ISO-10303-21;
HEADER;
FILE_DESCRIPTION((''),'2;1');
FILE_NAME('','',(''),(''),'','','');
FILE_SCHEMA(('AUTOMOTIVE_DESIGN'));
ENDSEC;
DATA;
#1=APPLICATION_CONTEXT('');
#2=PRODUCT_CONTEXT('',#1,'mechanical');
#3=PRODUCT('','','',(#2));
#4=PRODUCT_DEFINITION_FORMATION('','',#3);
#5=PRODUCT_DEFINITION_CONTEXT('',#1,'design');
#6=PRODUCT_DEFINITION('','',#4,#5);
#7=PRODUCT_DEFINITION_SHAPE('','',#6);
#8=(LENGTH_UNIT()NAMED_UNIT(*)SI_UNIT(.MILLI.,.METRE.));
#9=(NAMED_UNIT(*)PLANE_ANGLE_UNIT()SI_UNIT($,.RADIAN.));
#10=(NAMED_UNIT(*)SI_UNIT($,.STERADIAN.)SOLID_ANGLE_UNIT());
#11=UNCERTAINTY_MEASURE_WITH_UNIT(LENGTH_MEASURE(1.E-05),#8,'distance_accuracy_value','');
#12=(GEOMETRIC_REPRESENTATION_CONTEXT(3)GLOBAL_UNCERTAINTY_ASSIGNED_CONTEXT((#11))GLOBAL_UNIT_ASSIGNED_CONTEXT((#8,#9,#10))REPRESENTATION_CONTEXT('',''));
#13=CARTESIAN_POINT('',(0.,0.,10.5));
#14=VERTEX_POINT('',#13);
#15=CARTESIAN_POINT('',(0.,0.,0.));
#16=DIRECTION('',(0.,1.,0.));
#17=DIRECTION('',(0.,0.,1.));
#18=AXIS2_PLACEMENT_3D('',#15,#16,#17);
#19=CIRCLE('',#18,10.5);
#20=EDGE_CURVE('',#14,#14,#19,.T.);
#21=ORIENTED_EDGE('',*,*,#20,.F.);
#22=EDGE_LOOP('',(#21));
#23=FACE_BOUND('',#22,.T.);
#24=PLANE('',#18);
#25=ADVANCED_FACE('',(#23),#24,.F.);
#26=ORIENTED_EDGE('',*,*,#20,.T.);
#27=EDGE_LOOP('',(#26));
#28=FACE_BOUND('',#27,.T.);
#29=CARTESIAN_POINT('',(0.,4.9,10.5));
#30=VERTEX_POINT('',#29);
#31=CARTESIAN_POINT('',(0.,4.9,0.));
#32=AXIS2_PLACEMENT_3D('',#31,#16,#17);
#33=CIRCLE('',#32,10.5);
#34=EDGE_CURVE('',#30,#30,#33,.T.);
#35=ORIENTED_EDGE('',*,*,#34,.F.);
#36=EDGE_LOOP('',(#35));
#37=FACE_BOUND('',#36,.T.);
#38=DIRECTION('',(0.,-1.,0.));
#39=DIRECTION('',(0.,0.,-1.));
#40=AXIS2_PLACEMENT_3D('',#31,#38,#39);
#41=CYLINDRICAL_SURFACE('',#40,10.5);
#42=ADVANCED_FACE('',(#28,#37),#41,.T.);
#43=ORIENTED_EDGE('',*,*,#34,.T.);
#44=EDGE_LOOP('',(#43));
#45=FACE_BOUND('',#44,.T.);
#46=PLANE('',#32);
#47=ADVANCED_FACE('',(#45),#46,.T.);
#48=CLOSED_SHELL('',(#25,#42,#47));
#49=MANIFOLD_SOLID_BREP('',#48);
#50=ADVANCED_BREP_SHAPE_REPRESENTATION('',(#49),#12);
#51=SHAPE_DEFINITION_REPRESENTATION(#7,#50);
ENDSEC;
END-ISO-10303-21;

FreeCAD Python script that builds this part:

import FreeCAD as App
import Part
import Sketcher
from FreeCAD import Vector
Q = App.Units.Quantity

doc = App.newDocument("Part")
body = doc.addObject("PartDesign::Body", "Body")

sketch1 = body.newObject("Sketcher::SketchObject", "Sketch")
sketch1.AttachmentSupport = (doc.getObject("XZ_Plane"), [""])
sketch1.MapMode = "FlatFace"
sketch1.addGeometry(Part.Circle(Vector(0, 0, 0), Vector(0, 0, 1), 10), False)
sketch1.addConstraint([
    Sketcher.Constraint("Coincident", 0, 3, -1, 1),
    Sketcher.Constraint("Diameter", 0, Q("21 mm")),
])
pad1 = body.newObject("PartDesign::Pad", "Pad")
pad1.Profile = sketch1
pad1.Length = 4.9
pad1.Reversed = True

doc.recompute()
